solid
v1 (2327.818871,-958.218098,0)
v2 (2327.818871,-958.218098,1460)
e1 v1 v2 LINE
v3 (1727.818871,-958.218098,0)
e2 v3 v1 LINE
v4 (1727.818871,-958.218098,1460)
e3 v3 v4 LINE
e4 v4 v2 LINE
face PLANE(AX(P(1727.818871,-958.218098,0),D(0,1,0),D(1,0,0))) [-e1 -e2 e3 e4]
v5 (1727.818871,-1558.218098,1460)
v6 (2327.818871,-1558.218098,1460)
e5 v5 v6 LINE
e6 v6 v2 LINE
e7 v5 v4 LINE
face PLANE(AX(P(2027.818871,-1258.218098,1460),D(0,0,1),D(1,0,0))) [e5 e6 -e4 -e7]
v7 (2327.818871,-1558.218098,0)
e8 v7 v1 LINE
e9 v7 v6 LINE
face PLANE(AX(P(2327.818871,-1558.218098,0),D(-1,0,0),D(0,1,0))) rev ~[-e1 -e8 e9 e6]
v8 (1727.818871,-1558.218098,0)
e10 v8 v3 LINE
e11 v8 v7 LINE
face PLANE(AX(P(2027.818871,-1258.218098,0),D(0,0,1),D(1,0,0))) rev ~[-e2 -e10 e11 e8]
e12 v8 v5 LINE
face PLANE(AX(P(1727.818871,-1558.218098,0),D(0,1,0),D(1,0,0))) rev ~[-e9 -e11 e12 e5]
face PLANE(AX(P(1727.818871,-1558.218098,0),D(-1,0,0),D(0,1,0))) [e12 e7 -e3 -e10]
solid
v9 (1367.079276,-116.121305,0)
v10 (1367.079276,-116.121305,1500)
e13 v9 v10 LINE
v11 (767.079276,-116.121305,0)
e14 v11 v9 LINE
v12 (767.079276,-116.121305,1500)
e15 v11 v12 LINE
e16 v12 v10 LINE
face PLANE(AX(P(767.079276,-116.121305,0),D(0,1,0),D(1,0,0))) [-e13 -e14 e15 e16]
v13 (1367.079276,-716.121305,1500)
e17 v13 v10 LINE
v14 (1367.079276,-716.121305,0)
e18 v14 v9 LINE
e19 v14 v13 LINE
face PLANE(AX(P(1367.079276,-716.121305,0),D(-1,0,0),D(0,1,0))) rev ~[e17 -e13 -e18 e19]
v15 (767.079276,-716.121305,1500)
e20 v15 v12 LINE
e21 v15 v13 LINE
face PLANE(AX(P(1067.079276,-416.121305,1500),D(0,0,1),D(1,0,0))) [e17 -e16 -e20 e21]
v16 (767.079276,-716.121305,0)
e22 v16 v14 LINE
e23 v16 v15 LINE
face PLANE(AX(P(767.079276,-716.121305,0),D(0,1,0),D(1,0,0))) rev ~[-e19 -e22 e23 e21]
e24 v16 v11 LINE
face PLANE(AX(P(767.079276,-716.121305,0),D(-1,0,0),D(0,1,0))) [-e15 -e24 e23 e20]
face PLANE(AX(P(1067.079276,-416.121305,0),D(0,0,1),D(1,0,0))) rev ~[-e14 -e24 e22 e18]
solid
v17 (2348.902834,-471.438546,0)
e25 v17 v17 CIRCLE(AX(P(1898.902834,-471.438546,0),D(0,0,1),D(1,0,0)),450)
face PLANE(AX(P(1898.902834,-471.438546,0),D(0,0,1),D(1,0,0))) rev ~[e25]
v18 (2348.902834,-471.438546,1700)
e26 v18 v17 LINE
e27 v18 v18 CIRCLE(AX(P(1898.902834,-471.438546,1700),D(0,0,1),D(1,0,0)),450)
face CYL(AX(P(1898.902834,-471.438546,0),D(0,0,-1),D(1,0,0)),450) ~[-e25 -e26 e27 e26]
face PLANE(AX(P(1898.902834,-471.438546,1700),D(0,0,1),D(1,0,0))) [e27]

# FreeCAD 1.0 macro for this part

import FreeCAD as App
import Part
import Sketcher

V = App.Vector
Q = App.Units.Quantity

doc = App.newDocument("Part")
body = doc.addObject("PartDesign::Body", "Body")

# Sketch on XY plane
sketch1 = doc.addObject("Sketcher::SketchObject", "Sketch")
body.addObject(sketch1)
sketch1.AttachmentSupport = (doc.XY_Plane, [""])
sketch1.MapMode = "FlatFace"
sketch1.addGeometry([
    Part.LineSegment(V(767, -116, 0), V(767, -716, 0)),
    Part.LineSegment(V(767, -716, 0), V(1367, -716, 0)),
    Part.LineSegment(V(1367, -716, 0), V(1367, -116, 0)),
    Part.LineSegment(V(1367, -116, 0), V(767, -116, 0)),
], False)
sketch1.addConstraint([
    Sketcher.Constraint("Coincident", 0, 2, 1, 1),
    Sketcher.Constraint("Coincident", 1, 2, 2, 1),
    Sketcher.Constraint("Coincident", 2, 2, 3, 1),
    Sketcher.Constraint("Coincident", 3, 2, 0, 1),
    Sketcher.Constraint("Vertical", 0),
    Sketcher.Constraint("Horizontal", 1),
    Sketcher.Constraint("Vertical", 2),
    Sketcher.Constraint("Horizontal", 3),
    Sketcher.Constraint("Equal", 3, 0),
    Sketcher.Constraint("DistanceX", 1, 1, 1, 2, Q("600 mm")),
    Sketcher.Constraint("DistanceX", -1, 1, 0, 2, Q("767.079276 mm")),
    Sketcher.Constraint("DistanceY", 0, 2, -1, 1, Q("716.121305 mm")),
])
pad1 = doc.addObject("PartDesign::Pad", "Pad")
body.addObject(pad1)
pad1.Profile = sketch1
pad1.Length = 1500
body2 = doc.addObject("PartDesign::Body", "Body001")
body2.AllowCompound = True

# Sketch on XY plane
sketch2 = doc.addObject("Sketcher::SketchObject", "Sketch001")
body2.addObject(sketch2)
sketch2.AttachmentSupport = (doc.getObject("XY_Plane001"), [""])
sketch2.MapMode = "FlatFace"
sketch2.addGeometry(Part.Circle(V(1899, -471, 0), V(0, 0, 1), 450), False)
sketch2.addConstraint([
    Sketcher.Constraint("Diameter", 0, Q("900 mm")),
    Sketcher.Constraint("DistanceX", -1, 1, 0, 3, Q("1898.902834 mm")),
    Sketcher.Constraint("DistanceY", 0, 3, -1, 1, Q("471.438546 mm")),
])
pad2 = doc.addObject("PartDesign::Pad", "Pad001")
body2.addObject(pad2)
pad2.Profile = sketch2
pad2.Length = 1700

# Sketch on XY plane
sketch3 = doc.addObject("Sketcher::SketchObject", "Sketch002")
body2.addObject(sketch3)
sketch3.AttachmentSupport = (doc.getObject("XY_Plane001"), [""])
sketch3.MapMode = "FlatFace"
sketch3.addGeometry([
    Part.Circle(V(1899, -471, 0), V(0, 0, 1), 450),  # 0
    Part.LineSegment(V(1728, -958, 0), V(1728, -1558, 0)),  # 1
    Part.LineSegment(V(1728, -1558, 0), V(2328, -1558, 0)),  # 2
    Part.LineSegment(V(2328, -1558, 0), V(2328, -958, 0)),  # 3
    Part.LineSegment(V(2328, -958, 0), V(1728, -958, 0)),  # 4
], False)
sketch3.addConstraint([
    Sketcher.Constraint("Coincident", 1, 2, 2, 1),
    Sketcher.Constraint("Coincident", 2, 2, 3, 1),
    Sketcher.Constraint("Coincident", 3, 2, 4, 1),
    Sketcher.Constraint("Coincident", 4, 2, 1, 1),
    Sketcher.Constraint("Vertical", 1),
    Sketcher.Constraint("Horizontal", 2),
    Sketcher.Constraint("Vertical", 3),
    Sketcher.Constraint("Horizontal", 4),
    Sketcher.Constraint("Equal", 4, 1),
    Sketcher.Constraint("Diameter", 0, Q("900 mm")),
    Sketcher.Constraint("DistanceX", 2, 1, 2, 2, Q("600 mm")),
    Sketcher.Constraint("DistanceY", 1, 2, -1, 1, Q("1558.218098 mm")),
    Sketcher.Constraint("DistanceX", -1, 1, 1, 2, Q("1727.818871 mm")),
    Sketcher.Constraint("DistanceY", 1, 2, 0, 3, Q("1086.779552 mm")),
    Sketcher.Constraint("DistanceX", -1, 1, 0, 3, Q("1898.902834 mm")),
])
pad3 = doc.addObject("PartDesign::Pad", "Pad002")
body2.addObject(pad3)
pad3.Profile = sketch3
pad3.Length = 1460

doc.recompute()
